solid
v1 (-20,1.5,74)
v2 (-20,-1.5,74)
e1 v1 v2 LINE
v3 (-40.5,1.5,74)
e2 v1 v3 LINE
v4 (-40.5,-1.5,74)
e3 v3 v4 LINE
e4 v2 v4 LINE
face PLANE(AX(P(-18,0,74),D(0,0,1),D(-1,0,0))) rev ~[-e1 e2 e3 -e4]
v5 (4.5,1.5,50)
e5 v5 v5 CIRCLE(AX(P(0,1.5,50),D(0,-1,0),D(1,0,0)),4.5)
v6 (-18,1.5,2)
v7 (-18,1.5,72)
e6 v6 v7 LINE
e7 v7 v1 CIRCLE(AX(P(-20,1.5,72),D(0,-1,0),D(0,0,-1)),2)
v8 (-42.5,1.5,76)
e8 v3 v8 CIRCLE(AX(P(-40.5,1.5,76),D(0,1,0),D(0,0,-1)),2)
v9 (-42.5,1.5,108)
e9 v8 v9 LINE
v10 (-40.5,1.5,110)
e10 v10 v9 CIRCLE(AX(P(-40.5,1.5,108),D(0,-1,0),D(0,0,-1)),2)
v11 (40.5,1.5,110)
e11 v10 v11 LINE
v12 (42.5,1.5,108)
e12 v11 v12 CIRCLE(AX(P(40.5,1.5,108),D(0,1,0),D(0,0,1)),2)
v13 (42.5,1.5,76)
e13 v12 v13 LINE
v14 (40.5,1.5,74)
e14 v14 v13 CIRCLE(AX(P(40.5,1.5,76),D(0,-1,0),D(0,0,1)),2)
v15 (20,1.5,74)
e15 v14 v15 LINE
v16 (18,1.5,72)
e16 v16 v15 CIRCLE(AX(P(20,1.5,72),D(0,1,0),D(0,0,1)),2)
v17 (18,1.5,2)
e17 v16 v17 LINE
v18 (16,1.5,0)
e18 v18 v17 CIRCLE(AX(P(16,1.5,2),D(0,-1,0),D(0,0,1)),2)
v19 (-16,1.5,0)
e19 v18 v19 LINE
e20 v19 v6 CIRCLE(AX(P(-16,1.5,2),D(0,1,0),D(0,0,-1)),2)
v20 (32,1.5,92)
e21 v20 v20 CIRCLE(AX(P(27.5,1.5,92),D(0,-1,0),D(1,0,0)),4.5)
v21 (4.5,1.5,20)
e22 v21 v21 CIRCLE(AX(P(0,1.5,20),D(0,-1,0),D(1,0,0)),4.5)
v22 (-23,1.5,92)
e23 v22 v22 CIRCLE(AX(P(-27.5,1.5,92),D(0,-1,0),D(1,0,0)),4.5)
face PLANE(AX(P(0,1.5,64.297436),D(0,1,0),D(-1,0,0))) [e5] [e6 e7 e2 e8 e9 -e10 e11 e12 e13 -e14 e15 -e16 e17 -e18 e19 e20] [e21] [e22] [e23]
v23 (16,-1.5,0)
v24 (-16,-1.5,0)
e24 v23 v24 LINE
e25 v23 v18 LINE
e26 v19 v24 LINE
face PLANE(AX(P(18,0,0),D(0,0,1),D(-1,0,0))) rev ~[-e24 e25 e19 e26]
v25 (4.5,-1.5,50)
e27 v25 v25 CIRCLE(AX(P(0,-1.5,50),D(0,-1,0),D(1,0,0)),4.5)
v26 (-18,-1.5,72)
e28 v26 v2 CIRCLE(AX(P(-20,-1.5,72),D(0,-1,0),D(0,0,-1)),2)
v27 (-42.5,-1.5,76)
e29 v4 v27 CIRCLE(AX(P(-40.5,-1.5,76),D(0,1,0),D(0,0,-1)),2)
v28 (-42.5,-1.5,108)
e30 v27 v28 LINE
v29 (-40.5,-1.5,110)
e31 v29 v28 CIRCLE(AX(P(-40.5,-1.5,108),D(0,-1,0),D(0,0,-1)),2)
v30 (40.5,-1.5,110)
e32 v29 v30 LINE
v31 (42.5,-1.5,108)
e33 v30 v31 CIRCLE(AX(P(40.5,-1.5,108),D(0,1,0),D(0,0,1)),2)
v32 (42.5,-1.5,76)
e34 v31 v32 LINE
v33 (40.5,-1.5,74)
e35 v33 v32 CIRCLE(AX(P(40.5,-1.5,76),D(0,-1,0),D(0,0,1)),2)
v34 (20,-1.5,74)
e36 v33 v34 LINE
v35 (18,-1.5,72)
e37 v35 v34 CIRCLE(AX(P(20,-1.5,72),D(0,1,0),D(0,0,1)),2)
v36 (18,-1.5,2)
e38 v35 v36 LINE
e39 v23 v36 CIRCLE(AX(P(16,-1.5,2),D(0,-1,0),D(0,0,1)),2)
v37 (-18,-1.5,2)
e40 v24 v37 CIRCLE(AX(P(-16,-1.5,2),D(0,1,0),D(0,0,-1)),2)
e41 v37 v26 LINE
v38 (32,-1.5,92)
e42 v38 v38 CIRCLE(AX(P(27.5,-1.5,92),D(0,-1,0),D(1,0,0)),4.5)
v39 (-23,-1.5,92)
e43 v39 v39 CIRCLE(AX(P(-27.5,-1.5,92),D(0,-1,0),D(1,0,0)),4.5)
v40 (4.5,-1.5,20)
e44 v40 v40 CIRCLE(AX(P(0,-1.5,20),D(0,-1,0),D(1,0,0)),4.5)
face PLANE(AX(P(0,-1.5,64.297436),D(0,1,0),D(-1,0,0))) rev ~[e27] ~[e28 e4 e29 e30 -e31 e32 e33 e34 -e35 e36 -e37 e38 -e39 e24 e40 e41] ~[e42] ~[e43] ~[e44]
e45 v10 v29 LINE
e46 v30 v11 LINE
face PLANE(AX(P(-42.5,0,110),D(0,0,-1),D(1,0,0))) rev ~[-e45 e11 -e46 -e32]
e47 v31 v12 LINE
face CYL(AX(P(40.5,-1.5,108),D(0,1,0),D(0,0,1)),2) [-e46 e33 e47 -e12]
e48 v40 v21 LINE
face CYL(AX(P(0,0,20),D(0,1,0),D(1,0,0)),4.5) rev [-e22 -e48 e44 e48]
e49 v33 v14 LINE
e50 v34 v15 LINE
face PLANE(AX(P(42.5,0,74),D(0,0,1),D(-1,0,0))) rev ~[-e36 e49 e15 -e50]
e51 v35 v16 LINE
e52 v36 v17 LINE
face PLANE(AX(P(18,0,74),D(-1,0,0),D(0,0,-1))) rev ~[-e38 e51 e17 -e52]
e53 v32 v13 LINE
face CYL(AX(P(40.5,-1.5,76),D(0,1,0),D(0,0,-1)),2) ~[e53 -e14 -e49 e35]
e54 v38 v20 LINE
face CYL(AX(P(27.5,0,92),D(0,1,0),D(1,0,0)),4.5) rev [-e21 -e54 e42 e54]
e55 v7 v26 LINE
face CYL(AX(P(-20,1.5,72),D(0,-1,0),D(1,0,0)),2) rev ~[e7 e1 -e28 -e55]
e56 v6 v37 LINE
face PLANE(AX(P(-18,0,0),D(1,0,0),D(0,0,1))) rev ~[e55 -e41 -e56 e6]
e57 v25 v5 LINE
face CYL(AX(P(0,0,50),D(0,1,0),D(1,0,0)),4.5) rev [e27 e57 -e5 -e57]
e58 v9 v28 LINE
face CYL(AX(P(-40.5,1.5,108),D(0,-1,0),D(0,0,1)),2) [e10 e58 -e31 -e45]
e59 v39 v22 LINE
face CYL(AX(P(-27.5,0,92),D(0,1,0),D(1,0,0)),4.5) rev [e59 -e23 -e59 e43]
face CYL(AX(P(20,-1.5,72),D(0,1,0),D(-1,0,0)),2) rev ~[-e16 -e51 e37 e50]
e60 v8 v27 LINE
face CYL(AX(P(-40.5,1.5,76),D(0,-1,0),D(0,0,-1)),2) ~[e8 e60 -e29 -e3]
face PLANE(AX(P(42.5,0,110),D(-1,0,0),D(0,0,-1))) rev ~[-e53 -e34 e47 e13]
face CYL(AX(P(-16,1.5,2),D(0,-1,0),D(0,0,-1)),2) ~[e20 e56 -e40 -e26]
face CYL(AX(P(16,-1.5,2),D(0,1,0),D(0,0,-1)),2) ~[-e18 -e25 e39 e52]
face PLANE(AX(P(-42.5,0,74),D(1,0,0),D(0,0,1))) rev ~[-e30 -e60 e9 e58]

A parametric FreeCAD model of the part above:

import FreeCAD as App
import Part
import Sketcher
from FreeCAD import Vector


def edges_at(feature, points):
    """Names of the edges that pass closest to the given points."""
    edges = feature.Shape.Edges
    near = lambda p: min(range(len(edges)), key=lambda i: edges[i].distToShape(Part.Vertex(*p))[0])
    return sorted({f"Edge{near(p) + 1}" for p in points})


def add_polygon(sketch, points):
    """Adds a closed chain of lines whose ends are joined by coincident constraints."""
    first, n = sketch.GeometryCount, len(points)
    for a, b in zip(points, points[1:] + points[:1]):
        sketch.addGeometry(Part.LineSegment(App.Vector(*a, 0), App.Vector(*b, 0)), False)
    for i in range(n):
        sketch.addConstraint(Sketcher.Constraint("Coincident", first + i, 2, first + (i + 1) % n, 1))

doc = App.newDocument("Part")
params = doc.addObject("Spreadsheet::Sheet", "Params")
for row, (alias, value) in enumerate([
    ("sketch1_diameter", "9 mm"),
    ("sketch1_width", "85 mm"),
    ("sketch1_width2", "36 mm"),
    ("sketch1_height", "74 mm"),
    ("pad1_length", "3 mm"),
    ("fillet_radius", "2 mm"),
], start=1):
    params.set(f"A{row}", alias)
    params.set(f"B{row}", "=" + value)
    params.setAlias(f"B{row}", alias)

body = doc.addObject("PartDesign::Body", "Body")

sketch1 = body.newObject("Sketcher::SketchObject", "Sketch")
sketch1.AttachmentSupport = (doc.getObject("XZ_Plane"), [""])
sketch1.MapMode = "FlatFace"
add_polygon(sketch1, [(42.5, 110), (-42.5, 110), (-42.5, 74), (-18, 74), (-18, 0), (18, 0), (18, 74), (42.5, 74)])
sketch1.addGeometry(Part.Circle(Vector(0, 20, 0), Vector(0, 0, 1), 4.5), False)
sketch1.addGeometry(Part.Circle(Vector(0, 50, 0), Vector(0, 0, 1), 4.5), False)
sketch1.addGeometry(Part.Circle(Vector(27.5, 92, 0), Vector(0, 0, 1), 4.5), False)
sketch1.addGeometry(Part.Circle(Vector(-27.5, 92, 0), Vector(0, 0, 1), 4.5), False)
sketch1.addConstraint([
    Sketcher.Constraint("Horizontal", 0),
    Sketcher.Constraint("Vertical", 1),
    Sketcher.Constraint("Horizontal", 2),
    Sketcher.Constraint("Vertical", 3),
    Sketcher.Constraint("Horizontal", 4),
    Sketcher.Constraint("Vertical", 5),
    Sketcher.Constraint("Horizontal", 6),
    Sketcher.Constraint("Vertical", 7),
    Sketcher.Constraint("Equal", 8, 9),
    Sketcher.Constraint("Equal", 9, 10),
    Sketcher.Constraint("Equal", 10, 11),
    Sketcher.Constraint("Symmetric", 3, 2, 4, 2, -1, 1),
    Sketcher.Constraint("Symmetric", 10, 3, 11, 3, -2),
    Sketcher.Constraint("Symmetric", 1, 2, 6, 2, -2),
    Sketcher.Constraint("PointOnObject", 8, 3, -2),
    Sketcher.Constraint("PointOnObject", 9, 3, -2),
    Sketcher.Constraint("Equal", 4, 1),
    Sketcher.Constraint("Diameter", 8, 9.0),
    Sketcher.Constraint("DistanceX", 0, 2, 0, 1, 85.0),
    Sketcher.Constraint("DistanceX", 4, 1, 4, 2, 36.0),
    Sketcher.Constraint("DistanceY", 3, 2, 3, 1, 74.0),
    Sketcher.Constraint("DistanceY", -1, 1, 8, 3, 20.0),
    Sketcher.Constraint("DistanceY", -1, 1, 9, 3, 50.0),
    Sketcher.Constraint("DistanceY", -1, 1, 10, 3, 92.0),
    Sketcher.Constraint("DistanceX", 11, 3, 10, 3, 55.0),
])
sketch1.setExpression("Constraints[25]", "Params.sketch1_diameter")
sketch1.setExpression("Constraints[26]", "Params.sketch1_width")
sketch1.setExpression("Constraints[27]", "Params.sketch1_width2")
sketch1.setExpression("Constraints[28]", "Params.sketch1_height")
pad1 = body.newObject("PartDesign::Pad", "Pad")
pad1.Profile = sketch1
pad1.setExpression("Length", "Params.pad1_length")
pad1.Midplane = True
doc.recompute()

fillet = body.newObject("PartDesign::Fillet", "Fillet")
fillet.Base = (pad1, edges_at(pad1, [
    (42.5, 0, 110),
    (42.5, 0, 74),
    (18, 0, 74),
    (-18, 0, 74),
    (-42.5, 0, 74),
    (-42.5, 0, 110),
    (18, 0, 0),
    (-18, 0, 0),
]))
fillet.setExpression("Radius", "Params.fillet_radius")

doc.recompute()
